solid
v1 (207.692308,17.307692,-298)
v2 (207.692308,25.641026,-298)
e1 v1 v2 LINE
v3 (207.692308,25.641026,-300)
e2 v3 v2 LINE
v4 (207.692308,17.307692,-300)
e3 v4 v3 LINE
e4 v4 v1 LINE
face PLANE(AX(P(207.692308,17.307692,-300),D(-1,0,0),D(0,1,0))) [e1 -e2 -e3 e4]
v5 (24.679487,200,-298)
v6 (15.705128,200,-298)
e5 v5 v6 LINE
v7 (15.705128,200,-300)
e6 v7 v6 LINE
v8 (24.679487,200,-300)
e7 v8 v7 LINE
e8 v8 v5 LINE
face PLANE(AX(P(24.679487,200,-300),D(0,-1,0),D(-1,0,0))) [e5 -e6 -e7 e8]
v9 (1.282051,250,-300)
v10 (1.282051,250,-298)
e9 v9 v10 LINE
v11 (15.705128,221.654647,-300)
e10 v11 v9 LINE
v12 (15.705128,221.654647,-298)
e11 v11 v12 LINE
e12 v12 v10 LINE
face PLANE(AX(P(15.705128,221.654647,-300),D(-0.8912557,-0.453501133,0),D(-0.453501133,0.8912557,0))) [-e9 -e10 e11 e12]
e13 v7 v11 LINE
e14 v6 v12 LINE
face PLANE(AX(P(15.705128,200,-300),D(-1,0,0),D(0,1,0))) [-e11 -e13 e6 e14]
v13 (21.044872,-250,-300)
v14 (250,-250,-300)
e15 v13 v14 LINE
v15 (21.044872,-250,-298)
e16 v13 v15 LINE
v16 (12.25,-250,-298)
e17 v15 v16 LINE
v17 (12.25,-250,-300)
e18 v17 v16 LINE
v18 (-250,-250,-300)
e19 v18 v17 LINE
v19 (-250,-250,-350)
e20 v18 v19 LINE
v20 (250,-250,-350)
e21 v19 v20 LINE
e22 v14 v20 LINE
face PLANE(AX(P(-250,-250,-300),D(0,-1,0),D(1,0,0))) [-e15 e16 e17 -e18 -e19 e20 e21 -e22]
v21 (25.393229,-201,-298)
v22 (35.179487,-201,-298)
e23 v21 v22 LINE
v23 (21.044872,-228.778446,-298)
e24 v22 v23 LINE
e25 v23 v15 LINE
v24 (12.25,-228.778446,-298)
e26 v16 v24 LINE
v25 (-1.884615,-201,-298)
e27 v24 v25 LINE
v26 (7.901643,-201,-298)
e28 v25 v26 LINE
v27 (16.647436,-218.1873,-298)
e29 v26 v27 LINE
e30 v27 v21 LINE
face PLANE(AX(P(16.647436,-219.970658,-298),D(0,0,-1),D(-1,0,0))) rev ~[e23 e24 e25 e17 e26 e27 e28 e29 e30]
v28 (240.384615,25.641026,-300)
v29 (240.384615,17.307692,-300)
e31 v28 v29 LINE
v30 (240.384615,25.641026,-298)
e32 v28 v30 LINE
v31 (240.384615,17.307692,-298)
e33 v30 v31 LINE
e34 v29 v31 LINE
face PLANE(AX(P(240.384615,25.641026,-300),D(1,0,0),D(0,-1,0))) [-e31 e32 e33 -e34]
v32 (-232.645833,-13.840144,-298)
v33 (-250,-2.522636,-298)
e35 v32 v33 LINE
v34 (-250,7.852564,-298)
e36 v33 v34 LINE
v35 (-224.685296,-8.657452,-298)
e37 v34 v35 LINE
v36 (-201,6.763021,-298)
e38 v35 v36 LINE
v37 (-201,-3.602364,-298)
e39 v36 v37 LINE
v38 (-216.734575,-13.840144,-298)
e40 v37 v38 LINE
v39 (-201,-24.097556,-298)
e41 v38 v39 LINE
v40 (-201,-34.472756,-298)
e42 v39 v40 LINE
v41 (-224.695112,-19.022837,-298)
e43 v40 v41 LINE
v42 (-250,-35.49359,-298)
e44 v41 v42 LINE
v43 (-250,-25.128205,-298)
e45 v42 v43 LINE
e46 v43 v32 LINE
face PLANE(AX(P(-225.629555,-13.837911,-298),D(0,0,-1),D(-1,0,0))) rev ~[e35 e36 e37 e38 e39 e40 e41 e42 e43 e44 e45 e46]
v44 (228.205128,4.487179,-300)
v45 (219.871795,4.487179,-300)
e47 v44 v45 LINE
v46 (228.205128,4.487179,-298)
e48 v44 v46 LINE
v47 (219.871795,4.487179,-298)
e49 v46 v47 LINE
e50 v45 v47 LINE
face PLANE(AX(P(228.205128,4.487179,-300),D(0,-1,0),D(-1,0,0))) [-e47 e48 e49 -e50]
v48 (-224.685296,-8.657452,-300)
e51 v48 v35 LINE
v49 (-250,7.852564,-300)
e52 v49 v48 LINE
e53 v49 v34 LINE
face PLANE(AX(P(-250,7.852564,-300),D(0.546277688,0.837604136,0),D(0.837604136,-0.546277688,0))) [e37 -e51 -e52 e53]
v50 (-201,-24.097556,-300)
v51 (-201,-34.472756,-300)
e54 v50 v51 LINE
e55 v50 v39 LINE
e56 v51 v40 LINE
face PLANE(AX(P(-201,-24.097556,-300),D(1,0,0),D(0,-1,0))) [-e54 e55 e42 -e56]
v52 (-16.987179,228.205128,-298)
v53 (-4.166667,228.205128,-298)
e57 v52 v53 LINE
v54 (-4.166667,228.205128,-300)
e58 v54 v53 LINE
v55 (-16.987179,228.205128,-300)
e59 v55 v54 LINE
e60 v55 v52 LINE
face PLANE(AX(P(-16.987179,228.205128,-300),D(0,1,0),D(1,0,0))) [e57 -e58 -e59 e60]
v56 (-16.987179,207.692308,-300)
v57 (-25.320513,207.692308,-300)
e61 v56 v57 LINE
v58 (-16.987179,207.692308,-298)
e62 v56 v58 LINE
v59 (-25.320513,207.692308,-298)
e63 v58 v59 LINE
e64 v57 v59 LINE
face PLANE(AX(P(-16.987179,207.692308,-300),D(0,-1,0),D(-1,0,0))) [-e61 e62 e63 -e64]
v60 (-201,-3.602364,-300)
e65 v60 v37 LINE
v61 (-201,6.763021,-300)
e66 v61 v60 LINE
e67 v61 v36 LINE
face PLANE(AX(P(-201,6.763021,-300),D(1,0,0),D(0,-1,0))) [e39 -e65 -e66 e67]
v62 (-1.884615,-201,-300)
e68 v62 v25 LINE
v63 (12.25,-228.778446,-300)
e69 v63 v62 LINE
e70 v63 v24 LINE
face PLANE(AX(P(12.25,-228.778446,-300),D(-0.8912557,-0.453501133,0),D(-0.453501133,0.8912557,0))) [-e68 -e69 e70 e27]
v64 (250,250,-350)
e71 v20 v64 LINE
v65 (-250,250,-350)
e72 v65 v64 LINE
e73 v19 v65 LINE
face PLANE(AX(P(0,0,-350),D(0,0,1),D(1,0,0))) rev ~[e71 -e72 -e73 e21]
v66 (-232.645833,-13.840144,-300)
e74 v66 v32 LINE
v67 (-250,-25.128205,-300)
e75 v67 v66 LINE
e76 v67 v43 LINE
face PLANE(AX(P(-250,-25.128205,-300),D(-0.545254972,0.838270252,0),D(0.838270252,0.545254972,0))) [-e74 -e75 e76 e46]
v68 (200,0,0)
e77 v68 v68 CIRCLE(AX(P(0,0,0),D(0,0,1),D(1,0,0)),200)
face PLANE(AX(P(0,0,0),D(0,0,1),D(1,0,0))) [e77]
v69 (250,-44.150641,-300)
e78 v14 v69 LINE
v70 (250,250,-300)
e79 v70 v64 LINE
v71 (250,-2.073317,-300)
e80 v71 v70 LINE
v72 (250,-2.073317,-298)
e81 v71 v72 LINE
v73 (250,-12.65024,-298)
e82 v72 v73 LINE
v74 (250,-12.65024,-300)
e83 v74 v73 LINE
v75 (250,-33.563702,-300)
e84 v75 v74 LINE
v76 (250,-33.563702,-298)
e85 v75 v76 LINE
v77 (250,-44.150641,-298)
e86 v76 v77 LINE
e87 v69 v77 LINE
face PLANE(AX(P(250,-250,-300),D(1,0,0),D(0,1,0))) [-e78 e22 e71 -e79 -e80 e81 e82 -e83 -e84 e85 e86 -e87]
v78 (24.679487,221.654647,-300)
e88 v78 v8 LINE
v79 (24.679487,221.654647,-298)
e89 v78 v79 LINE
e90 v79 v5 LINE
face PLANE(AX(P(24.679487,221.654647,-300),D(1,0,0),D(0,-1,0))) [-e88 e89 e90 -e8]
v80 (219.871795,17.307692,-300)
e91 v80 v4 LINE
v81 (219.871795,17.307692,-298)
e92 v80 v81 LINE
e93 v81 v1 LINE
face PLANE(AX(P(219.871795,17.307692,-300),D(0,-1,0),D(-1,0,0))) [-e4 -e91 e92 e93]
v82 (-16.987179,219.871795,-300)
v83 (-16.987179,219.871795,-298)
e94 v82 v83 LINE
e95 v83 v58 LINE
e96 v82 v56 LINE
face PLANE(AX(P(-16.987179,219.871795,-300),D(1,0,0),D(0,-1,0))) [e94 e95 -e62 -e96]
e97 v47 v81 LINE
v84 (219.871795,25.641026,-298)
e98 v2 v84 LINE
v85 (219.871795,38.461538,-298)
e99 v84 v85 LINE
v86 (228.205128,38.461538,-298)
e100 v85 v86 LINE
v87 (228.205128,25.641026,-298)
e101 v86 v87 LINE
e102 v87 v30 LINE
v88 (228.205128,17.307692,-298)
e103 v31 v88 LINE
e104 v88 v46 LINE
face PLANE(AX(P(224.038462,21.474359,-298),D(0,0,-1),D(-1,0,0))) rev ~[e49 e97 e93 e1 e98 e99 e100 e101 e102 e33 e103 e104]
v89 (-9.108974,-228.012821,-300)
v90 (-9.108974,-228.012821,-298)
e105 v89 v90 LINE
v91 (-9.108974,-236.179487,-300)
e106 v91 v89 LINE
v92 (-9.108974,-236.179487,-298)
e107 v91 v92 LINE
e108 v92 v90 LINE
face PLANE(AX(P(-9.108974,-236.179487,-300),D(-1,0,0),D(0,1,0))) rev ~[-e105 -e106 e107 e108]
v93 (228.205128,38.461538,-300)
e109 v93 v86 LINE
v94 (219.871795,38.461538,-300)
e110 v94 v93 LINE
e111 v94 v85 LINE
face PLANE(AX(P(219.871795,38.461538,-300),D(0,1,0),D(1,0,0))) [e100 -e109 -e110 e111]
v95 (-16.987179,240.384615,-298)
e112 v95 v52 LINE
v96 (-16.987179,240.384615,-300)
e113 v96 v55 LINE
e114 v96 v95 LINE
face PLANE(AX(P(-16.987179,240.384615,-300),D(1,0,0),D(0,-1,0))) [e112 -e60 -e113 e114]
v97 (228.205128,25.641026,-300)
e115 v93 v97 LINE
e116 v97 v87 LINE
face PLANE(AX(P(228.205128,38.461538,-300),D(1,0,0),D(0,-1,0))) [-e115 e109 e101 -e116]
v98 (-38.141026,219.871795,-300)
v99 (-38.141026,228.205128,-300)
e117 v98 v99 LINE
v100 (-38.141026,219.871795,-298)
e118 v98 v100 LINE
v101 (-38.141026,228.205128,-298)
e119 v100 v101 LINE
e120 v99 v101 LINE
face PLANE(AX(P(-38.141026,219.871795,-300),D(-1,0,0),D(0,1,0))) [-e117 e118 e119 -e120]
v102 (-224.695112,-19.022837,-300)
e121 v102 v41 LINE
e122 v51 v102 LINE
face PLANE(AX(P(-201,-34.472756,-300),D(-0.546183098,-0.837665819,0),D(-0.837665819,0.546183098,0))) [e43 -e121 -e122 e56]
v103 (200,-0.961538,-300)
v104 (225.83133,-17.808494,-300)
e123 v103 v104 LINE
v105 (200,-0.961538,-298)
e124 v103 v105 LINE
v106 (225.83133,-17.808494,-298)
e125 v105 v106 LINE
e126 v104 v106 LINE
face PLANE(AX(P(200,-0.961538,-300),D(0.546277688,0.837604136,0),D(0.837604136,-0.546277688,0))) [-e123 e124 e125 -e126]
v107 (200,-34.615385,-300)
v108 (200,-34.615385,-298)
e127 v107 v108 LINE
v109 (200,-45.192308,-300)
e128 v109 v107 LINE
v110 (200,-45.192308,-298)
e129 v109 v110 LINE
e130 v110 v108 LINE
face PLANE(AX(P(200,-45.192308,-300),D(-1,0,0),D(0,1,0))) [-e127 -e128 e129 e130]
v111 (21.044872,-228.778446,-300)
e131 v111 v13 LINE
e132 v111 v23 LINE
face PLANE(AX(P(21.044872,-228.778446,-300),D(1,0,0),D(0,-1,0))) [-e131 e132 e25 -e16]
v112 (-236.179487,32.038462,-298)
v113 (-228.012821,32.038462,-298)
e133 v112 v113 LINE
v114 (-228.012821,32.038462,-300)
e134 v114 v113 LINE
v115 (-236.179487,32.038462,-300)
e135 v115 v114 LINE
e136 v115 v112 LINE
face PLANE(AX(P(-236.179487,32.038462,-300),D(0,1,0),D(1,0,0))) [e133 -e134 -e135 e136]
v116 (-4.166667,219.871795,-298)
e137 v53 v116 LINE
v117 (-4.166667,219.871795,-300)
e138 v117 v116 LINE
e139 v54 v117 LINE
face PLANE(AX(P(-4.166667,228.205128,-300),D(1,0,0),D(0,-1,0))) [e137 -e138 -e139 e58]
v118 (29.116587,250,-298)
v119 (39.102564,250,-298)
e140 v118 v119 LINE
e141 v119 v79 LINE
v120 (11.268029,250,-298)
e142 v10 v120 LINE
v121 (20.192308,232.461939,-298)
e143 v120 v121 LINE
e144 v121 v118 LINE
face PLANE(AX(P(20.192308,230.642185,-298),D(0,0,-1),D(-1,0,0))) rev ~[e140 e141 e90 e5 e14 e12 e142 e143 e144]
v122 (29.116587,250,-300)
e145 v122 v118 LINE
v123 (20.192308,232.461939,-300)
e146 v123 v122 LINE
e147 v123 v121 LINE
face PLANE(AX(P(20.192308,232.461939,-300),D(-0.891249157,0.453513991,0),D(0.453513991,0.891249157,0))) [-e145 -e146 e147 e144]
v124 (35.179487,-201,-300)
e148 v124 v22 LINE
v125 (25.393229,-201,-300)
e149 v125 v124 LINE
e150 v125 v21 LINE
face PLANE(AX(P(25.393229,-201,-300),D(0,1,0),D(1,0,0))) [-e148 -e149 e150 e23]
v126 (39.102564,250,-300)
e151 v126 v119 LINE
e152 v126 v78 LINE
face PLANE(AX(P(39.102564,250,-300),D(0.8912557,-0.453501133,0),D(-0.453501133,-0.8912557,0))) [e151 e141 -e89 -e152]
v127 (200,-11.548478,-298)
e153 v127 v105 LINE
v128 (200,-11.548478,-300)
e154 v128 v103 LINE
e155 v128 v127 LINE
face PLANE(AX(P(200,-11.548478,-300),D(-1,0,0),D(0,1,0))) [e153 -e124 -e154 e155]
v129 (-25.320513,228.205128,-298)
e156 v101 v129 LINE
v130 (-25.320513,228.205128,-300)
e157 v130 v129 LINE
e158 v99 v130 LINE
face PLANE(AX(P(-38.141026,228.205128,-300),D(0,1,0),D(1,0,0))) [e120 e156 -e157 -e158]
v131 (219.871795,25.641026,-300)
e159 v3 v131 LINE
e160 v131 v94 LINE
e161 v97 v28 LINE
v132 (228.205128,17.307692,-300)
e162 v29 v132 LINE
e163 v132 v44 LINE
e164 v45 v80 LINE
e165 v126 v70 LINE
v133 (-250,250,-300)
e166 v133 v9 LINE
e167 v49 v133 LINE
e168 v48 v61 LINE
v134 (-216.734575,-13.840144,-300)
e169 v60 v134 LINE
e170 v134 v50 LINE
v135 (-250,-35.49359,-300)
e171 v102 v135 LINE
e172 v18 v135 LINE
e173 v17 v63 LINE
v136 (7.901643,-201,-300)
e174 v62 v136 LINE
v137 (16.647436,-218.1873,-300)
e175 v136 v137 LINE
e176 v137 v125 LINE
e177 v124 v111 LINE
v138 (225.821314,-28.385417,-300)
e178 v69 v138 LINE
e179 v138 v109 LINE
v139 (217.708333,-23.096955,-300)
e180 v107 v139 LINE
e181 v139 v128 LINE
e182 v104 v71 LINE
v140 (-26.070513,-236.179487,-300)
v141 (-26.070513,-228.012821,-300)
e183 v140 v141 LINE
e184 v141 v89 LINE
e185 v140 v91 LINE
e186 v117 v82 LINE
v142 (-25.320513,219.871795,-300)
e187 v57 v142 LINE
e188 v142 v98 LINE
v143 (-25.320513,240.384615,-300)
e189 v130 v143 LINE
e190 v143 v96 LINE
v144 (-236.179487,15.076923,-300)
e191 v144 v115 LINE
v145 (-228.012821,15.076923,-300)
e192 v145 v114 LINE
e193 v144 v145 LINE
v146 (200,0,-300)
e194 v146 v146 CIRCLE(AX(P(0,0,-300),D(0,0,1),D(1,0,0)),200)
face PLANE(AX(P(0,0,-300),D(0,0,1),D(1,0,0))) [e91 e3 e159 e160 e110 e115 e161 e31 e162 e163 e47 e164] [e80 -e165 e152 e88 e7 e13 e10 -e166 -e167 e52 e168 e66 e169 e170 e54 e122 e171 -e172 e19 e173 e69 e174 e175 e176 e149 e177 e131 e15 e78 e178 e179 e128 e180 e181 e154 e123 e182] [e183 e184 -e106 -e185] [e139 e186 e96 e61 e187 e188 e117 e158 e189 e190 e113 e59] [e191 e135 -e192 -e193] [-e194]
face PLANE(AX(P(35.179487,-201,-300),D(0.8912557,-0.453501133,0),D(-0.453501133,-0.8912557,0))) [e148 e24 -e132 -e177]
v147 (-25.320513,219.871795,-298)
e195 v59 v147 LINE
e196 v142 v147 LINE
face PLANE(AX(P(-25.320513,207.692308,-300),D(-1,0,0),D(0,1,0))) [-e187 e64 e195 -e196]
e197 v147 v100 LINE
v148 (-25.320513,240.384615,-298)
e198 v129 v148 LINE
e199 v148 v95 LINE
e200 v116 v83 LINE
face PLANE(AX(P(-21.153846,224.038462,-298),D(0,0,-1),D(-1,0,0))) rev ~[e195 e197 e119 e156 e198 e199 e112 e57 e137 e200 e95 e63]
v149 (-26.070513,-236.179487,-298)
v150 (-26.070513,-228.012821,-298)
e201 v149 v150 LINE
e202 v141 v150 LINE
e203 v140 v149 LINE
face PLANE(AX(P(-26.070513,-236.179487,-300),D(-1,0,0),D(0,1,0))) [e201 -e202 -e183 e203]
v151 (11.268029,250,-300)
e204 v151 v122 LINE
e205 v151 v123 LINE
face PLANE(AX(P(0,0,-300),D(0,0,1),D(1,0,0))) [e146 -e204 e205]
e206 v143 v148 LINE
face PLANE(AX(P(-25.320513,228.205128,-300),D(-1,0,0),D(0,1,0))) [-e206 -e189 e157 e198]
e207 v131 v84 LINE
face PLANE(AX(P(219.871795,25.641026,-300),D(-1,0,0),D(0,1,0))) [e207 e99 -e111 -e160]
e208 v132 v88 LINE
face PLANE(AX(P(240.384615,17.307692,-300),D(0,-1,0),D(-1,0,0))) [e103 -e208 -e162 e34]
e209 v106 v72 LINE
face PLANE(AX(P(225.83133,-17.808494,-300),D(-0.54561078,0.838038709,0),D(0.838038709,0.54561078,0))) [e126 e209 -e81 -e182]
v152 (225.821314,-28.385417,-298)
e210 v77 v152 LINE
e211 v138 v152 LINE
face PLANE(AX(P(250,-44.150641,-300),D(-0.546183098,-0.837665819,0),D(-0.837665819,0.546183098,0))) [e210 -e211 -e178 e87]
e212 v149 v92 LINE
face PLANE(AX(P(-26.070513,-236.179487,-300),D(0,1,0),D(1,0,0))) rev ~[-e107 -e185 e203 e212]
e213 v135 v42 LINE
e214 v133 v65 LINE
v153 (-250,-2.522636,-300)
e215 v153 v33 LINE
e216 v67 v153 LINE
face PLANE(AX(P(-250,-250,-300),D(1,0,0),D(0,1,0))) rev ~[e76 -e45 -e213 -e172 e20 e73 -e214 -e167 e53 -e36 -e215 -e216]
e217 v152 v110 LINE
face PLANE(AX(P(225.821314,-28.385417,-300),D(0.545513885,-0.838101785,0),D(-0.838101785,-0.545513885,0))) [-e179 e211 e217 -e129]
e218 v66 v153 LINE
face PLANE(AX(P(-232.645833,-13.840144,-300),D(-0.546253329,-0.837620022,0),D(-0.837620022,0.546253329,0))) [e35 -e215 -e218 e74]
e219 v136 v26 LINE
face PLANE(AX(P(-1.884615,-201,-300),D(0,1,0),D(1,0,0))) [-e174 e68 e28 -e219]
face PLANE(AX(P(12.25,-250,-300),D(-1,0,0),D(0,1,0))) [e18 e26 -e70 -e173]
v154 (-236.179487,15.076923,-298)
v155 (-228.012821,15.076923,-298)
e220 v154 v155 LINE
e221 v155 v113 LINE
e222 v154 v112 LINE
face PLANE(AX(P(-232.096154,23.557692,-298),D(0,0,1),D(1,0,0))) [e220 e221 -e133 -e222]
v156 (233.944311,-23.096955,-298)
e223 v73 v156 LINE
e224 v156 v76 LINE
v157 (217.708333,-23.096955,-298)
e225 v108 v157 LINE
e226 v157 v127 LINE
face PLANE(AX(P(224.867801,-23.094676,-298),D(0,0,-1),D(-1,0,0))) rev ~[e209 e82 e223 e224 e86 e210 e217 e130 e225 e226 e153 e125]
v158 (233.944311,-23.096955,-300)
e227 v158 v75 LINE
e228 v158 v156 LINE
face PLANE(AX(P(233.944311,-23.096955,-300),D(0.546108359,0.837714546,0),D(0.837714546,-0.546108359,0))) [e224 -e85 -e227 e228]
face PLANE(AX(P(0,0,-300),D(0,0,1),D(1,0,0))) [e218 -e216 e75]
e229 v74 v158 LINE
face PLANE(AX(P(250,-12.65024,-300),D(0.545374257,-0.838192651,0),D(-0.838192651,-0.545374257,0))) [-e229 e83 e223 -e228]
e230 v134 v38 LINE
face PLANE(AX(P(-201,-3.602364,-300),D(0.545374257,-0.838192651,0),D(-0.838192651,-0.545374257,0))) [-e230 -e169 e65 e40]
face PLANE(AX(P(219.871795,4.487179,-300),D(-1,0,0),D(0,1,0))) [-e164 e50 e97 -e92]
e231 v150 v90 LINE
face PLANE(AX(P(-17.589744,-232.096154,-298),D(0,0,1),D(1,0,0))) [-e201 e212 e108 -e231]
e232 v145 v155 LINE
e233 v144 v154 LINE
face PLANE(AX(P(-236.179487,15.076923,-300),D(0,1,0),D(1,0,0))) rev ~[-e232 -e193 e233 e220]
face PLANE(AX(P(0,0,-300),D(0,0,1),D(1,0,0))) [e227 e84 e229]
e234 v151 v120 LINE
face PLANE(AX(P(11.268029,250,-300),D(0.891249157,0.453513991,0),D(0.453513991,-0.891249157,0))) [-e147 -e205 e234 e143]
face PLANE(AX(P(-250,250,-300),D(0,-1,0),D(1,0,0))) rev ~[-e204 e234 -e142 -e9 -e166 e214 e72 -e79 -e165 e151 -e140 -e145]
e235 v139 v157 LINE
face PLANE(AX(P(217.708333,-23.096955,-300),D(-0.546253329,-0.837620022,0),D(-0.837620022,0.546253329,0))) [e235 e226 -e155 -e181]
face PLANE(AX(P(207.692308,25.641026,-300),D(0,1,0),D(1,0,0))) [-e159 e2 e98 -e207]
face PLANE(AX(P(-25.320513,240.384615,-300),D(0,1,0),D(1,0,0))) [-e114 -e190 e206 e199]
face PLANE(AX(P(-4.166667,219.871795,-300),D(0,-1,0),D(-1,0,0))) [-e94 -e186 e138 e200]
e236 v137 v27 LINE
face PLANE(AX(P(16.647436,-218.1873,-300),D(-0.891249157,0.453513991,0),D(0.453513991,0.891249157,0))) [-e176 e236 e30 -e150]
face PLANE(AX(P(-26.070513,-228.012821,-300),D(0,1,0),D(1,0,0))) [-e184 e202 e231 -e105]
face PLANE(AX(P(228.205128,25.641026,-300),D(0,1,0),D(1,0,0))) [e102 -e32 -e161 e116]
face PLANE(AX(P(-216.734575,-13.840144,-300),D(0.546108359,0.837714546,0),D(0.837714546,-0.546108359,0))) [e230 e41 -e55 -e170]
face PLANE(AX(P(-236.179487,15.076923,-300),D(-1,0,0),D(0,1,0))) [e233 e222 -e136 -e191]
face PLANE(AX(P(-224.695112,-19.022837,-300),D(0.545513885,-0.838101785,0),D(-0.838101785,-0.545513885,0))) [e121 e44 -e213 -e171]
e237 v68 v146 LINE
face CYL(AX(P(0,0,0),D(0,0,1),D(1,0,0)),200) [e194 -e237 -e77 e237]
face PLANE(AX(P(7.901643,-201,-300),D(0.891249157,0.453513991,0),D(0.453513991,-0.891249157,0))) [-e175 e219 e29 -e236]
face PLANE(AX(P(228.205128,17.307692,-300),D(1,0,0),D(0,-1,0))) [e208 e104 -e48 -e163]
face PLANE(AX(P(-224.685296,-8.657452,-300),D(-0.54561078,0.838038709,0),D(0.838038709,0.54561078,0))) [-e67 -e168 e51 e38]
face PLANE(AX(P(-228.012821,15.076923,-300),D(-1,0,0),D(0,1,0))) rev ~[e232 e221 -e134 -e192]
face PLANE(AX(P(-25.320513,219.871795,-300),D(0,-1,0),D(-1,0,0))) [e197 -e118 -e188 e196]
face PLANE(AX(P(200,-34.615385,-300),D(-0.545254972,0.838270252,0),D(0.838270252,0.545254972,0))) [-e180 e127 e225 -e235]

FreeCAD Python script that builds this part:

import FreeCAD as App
import Part
import Sketcher

V = App.Vector
Q = App.Units.Quantity

doc = App.newDocument("Part")
params = doc.addObject("Spreadsheet::Sheet", "Params")
for row, (alias, value) in enumerate([
    ("sketch1_diameter", "400 mm"),
    ("pad1_length", "300 mm"),
    ("sketch2_width", "500 mm"),
    ("pad2_length", "50 mm"),
    ("pad3_length", "2 mm"),
], start=1):
    params.set(f"A{row}", alias)
    params.set(f"B{row}", "=" + value)
    params.setAlias(f"B{row}", alias)

body = doc.addObject("PartDesign::Body", "Body")

# Sketch on XY plane
sketch1 = body.newObject("Sketcher::SketchObject", "Sketch")
sketch1.AttachmentSupport = (doc.getObject("XY_Plane"), [""])
sketch1.MapMode = "FlatFace"
sketch1.addGeometry(Part.Circle(V(0, 0, 0), V(0, 0, 1), 200), False)
sketch1.addConstraint(Sketcher.Constraint("Coincident", 0, 3, -1, 1))
sketch1.addConstraint(Sketcher.Constraint("Diameter", 0, Q("400 mm")))
sketch1.setExpression("Constraints[1]", "Params.sketch1_diameter")
pad1 = body.newObject("PartDesign::Pad", "Pad")
pad1.Profile = sketch1
pad1.setExpression("Length", "Params.pad1_length")
pad1.Reversed = True

# Sketch on XY plane
sketch2 = body.newObject("Sketcher::SketchObject", "Sketch001")
sketch2.AttachmentSupport = (doc.getObject("XY_Plane"), [""])
sketch2.MapMode = "FlatFace"
sketch2.AttachmentOffset = App.Placement(V(0, 0, -300), App.Rotation())
sketch2.addGeometry(Part.LineSegment(V(-250, 250, 0), V(-250, -250, 0)), False)
sketch2.addGeometry(Part.LineSegment(V(-250, -250, 0), V(250, -250, 0)), False)
sketch2.addGeometry(Part.LineSegment(V(250, -250, 0), V(250, 250, 0)), False)
sketch2.addGeometry(Part.LineSegment(V(250, 250, 0), V(-250, 250, 0)), False)
sketch2.addConstraint(Sketcher.Constraint("Coincident", 0, 2, 1, 1))
sketch2.addConstraint(Sketcher.Constraint("Coincident", 1, 2, 2, 1))
sketch2.addConstraint(Sketcher.Constraint("Coincident", 2, 2, 3, 1))
sketch2.addConstraint(Sketcher.Constraint("Coincident", 3, 2, 0, 1))
sketch2.addConstraint(Sketcher.Constraint("Vertical", 0))
sketch2.addConstraint(Sketcher.Constraint("Horizontal", 1))
sketch2.addConstraint(Sketcher.Constraint("Vertical", 2))
sketch2.addConstraint(Sketcher.Constraint("Horizontal", 3))
sketch2.addConstraint(Sketcher.Constraint("Symmetric", 0, 2, 2, 2, -1, 1))
sketch2.addConstraint(Sketcher.Constraint("Equal", 3, 0))
sketch2.addConstraint(Sketcher.Constraint("DistanceX", 1, 1, 1, 2, Q("500 mm")))
sketch2.setExpression("Constraints[10]", "Params.sketch2_width")
pad2 = body.newObject("PartDesign::Pad", "Pad001")
pad2.Profile = sketch2
pad2.setExpression("Length", "Params.pad2_length")
pad2.Reversed = True

# Sketch on XY plane
sketch3 = body.newObject("Sketcher::SketchObject", "Sketch002")
sketch3.AttachmentSupport = (doc.getObject("XY_Plane"), [""])
sketch3.MapMode = "FlatFace"
sketch3.AttachmentOffset = App.Placement(V(0, 0, -300), App.Rotation())
sketch3.addGeometry(Part.LineSegment(V(240.384615, 25.641026, 0), V(228.205128, 25.641026, 0)), False)
sketch3.addGeometry(Part.LineSegment(V(228.205128, 25.641026, 0), V(228.205128, 38.461538, 0)), False)
sketch3.addGeometry(Part.LineSegment(V(228.205128, 38.461538, 0), V(219.871795, 38.461538, 0)), False)
sketch3.addGeometry(Part.LineSegment(V(219.871795, 38.461538, 0), V(219.871795, 25.641026, 0)), False)
sketch3.addGeometry(Part.LineSegment(V(219.871795, 25.641026, 0), V(207.692308, 25.641026, 0)), False)
sketch3.addGeometry(Part.LineSegment(V(207.692308, 25.641026, 0), V(207.692308, 17.307692, 0)), False)
sketch3.addGeometry(Part.LineSegment(V(207.692308, 17.307692, 0), V(219.871795, 17.307692, 0)), False)
sketch3.addGeometry(Part.LineSegment(V(219.871795, 17.307692, 0), V(219.871795, 4.487179, 0)), False)
sketch3.addGeometry(Part.LineSegment(V(219.871795, 4.487179, 0), V(228.205128, 4.487179, 0)), False)
sketch3.addGeometry(Part.LineSegment(V(228.205128, 4.487179, 0), V(228.205128, 17.307692, 0)), False)
sketch3.addGeometry(Part.LineSegment(V(228.205128, 17.307692, 0), V(240.384615, 17.307692, 0)), False)
sketch3.addGeometry(Part.LineSegment(V(240.384615, 17.307692, 0), V(240.384615, 25.641026, 0)), False)
sketch3.addGeometry(Part.LineSegment(V(250, -12.65024, 0), V(250, -2.073317, 0)), False)
sketch3.addGeometry(Part.LineSegment(V(250, -2.073317, 0), V(225.83133, -17.808494, 0)), False)
sketch3.addGeometry(Part.LineSegment(V(225.83133, -17.808494, 0), V(200, -0.961538, 0)), False)
sketch3.addGeometry(Part.LineSegment(V(200, -0.961538, 0), V(200, -11.548478, 0)), False)
sketch3.addGeometry(Part.LineSegment(V(200, -11.548478, 0), V(217.708333, -23.096955, 0)), False)
sketch3.addGeometry(Part.LineSegment(V(217.708333, -23.096955, 0), V(200, -34.615385, 0)), False)
sketch3.addGeometry(Part.LineSegment(V(200, -34.615385, 0), V(200, -45.192308, 0)), False)
sketch3.addGeometry(Part.LineSegment(V(200, -45.192308, 0), V(225.821314, -28.385417, 0)), False)
sketch3.addGeometry(Part.LineSegment(V(225.821314, -28.385417, 0), V(250, -44.150641, 0)), False)
sketch3.addGeometry(Part.LineSegment(V(250, -44.150641, 0), V(250, -33.563702, 0)), False)
sketch3.addGeometry(Part.LineSegment(V(250, -33.563702, 0), V(233.944311, -23.096955, 0)), False)
sketch3.addGeometry(Part.LineSegment(V(233.944311, -23.096955, 0), V(250, -12.65024, 0)), False)
sketch3.addGeometry(Part.LineSegment(V(-25.320513, 240.384615, 0), V(-25.320513, 228.205128, 0)), False)
sketch3.addGeometry(Part.LineSegment(V(-25.320513, 228.205128, 0), V(-38.141026, 228.205128, 0)), False)
sketch3.addGeometry(Part.LineSegment(V(-38.141026, 228.205128, 0), V(-38.141026, 219.871795, 0)), False)
sketch3.addGeometry(Part.LineSegment(V(-38.141026, 219.871795, 0), V(-25.320513, 219.871795, 0)), False)
sketch3.addGeometry(Part.LineSegment(V(-25.320513, 219.871795, 0), V(-25.320513, 207.692308, 0)), False)
sketch3.addGeometry(Part.LineSegment(V(-25.320513, 207.692308, 0), V(-16.987179, 207.692308, 0)), False)
sketch3.addGeometry(Part.LineSegment(V(-16.987179, 207.692308, 0), V(-16.987179, 219.871795, 0)), False)
sketch3.addGeometry(Part.LineSegment(V(-16.987179, 219.871795, 0), V(-4.166667, 219.871795, 0)), False)
sketch3.addGeometry(Part.LineSegment(V(-4.166667, 219.871795, 0), V(-4.166667, 228.205128, 0)), False)
sketch3.addGeometry(Part.LineSegment(V(-4.166667, 228.205128, 0), V(-16.987179, 228.205128, 0)), False)
sketch3.addGeometry(Part.LineSegment(V(-16.987179, 228.205128, 0), V(-16.987179, 240.384615, 0)), False)
sketch3.addGeometry(Part.LineSegment(V(-16.987179, 240.384615, 0), V(-25.320513, 240.384615, 0)), False)
sketch3.addGeometry(Part.LineSegment(V(11.268029, 250, 0), V(1.282051, 250, 0)), False)
sketch3.addGeometry(Part.LineSegment(V(1.282051, 250, 0), V(15.705128, 221.654647, 0)), False)
sketch3.addGeometry(Part.LineSegment(V(15.705128, 221.654647, 0), V(15.705128, 200, 0)), False)
sketch3.addGeometry(Part.LineSegment(V(15.705128, 200, 0), V(24.679487, 200, 0)), False)
sketch3.addGeometry(Part.LineSegment(V(24.679487, 200, 0), V(24.679487, 221.654647, 0)), False)
sketch3.addGeometry(Part.LineSegment(V(24.679487, 221.654647, 0), V(39.102564, 250, 0)), False)
sketch3.addGeometry(Part.LineSegment(V(39.102564, 250, 0), V(29.116587, 250, 0)), False)
sketch3.addGeometry(Part.LineSegment(V(29.116587, 250, 0), V(20.192308, 232.461939, 0)), False)
sketch3.addGeometry(Part.LineSegment(V(20.192308, 232.461939, 0), V(11.268029, 250, 0)), False)
sketch3.addGeometry(Part.LineSegment(V(-201, -3.602364, 0), V(-201, 6.763021, 0)), False)
sketch3.addGeometry(Part.LineSegment(V(-201, 6.763021, 0), V(-224.685296, -8.657452, 0)), False)
sketch3.addGeometry(Part.LineSegment(V(-224.685296, -8.657452, 0), V(-250, 7.852564, 0)), False)
sketch3.addGeometry(Part.LineSegment(V(-250, 7.852564, 0), V(-250, -2.522636, 0)), False)
sketch3.addGeometry(Part.LineSegment(V(-250, -2.522636, 0), V(-232.645833, -13.840144, 0)), False)
sketch3.addGeometry(Part.LineSegment(V(-232.645833, -13.840144, 0), V(-250, -25.128205, 0)), False)
sketch3.addGeometry(Part.LineSegment(V(-250, -25.128205, 0), V(-250, -35.49359, 0)), False)
sketch3.addGeometry(Part.LineSegment(V(-250, -35.49359, 0), V(-224.695112, -19.022837, 0)), False)
sketch3.addGeometry(Part.LineSegment(V(-224.695112, -19.022837, 0), V(-201, -34.472756, 0)), False)
sketch3.addGeometry(Part.LineSegment(V(-201, -34.472756, 0), V(-201, -24.097556, 0)), False)
sketch3.addGeometry(Part.LineSegment(V(-201, -24.097556, 0), V(-216.734575, -13.840144, 0)), False)
sketch3.addGeometry(Part.LineSegment(V(-216.734575, -13.840144, 0), V(-201, -3.602364, 0)), False)
sketch3.addGeometry(Part.LineSegment(V(-236.179487, 32.038462, 0), V(-236.179487, 15.076923, 0)), False)
sketch3.addGeometry(Part.LineSegment(V(-236.179487, 15.076923, 0), V(-228.012821, 15.076923, 0)), False)
sketch3.addGeometry(Part.LineSegment(V(-228.012821, 15.076923, 0), V(-228.012821, 32.038462, 0)), False)
sketch3.addGeometry(Part.LineSegment(V(-228.012821, 32.038462, 0), V(-236.179487, 32.038462, 0)), False)
sketch3.addGeometry(Part.LineSegment(V(-26.070513, -228.012821, 0), V(-26.070513, -236.179487, 0)), False)
sketch3.addGeometry(Part.LineSegment(V(-26.070513, -236.179487, 0), V(-9.108974, -236.179487, 0)), False)
sketch3.addGeometry(Part.LineSegment(V(-9.108974, -236.179487, 0), V(-9.108974, -228.012821, 0)), False)
sketch3.addGeometry(Part.LineSegment(V(-9.108974, -228.012821, 0), V(-26.070513, -228.012821, 0)), False)
sketch3.addGeometry(Part.LineSegment(V(7.901643, -201, 0), V(-1.884615, -201, 0)), False)
sketch3.addGeometry(Part.LineSegment(V(-1.884615, -201, 0), V(12.25, -228.778446, 0)), False)
sketch3.addGeometry(Part.LineSegment(V(12.25, -228.778446, 0), V(12.25, -250, 0)), False)
sketch3.addGeometry(Part.LineSegment(V(12.25, -250, 0), V(21.044872, -250, 0)), False)
sketch3.addGeometry(Part.LineSegment(V(21.044872, -250, 0), V(21.044872, -228.778446, 0)), False)
sketch3.addGeometry(Part.LineSegment(V(21.044872, -228.778446, 0), V(35.179487, -201, 0)), False)
sketch3.addGeometry(Part.LineSegment(V(35.179487, -201, 0), V(25.393229, -201, 0)), False)
sketch3.addGeometry(Part.LineSegment(V(25.393229, -201, 0), V(16.647436, -218.1873, 0)), False)
sketch3.addGeometry(Part.LineSegment(V(16.647436, -218.1873, 0), V(7.901643, -201, 0)), False)
sketch3.addConstraint(Sketcher.Constraint("Coincident", 0, 2, 1, 1))
sketch3.addConstraint(Sketcher.Constraint("Coincident", 1, 2, 2, 1))
sketch3.addConstraint(Sketcher.Constraint("Coincident", 2, 2, 3, 1))
sketch3.addConstraint(Sketcher.Constraint("Coincident", 3, 2, 4, 1))
sketch3.addConstraint(Sketcher.Constraint("Coincident", 4, 2, 5, 1))
sketch3.addConstraint(Sketcher.Constraint("Coincident", 5, 2, 6, 1))
sketch3.addConstraint(Sketcher.Constraint("Coincident", 6, 2, 7, 1))
sketch3.addConstraint(Sketcher.Constraint("Coincident", 7, 2, 8, 1))
sketch3.addConstraint(Sketcher.Constraint("Coincident", 8, 2, 9, 1))
sketch3.addConstraint(Sketcher.Constraint("Coincident", 9, 2, 10, 1))
sketch3.addConstraint(Sketcher.Constraint("Coincident", 10, 2, 11, 1))
sketch3.addConstraint(Sketcher.Constraint("Coincident", 11, 2, 0, 1))
sketch3.addConstraint(Sketcher.Constraint("Coincident", 12, 2, 13, 1))
sketch3.addConstraint(Sketcher.Constraint("Coincident", 13, 2, 14, 1))
sketch3.addConstraint(Sketcher.Constraint("Coincident", 14, 2, 15, 1))
sketch3.addConstraint(Sketcher.Constraint("Coincident", 15, 2, 16, 1))
sketch3.addConstraint(Sketcher.Constraint("Coincident", 16, 2, 17, 1))
sketch3.addConstraint(Sketcher.Constraint("Coincident", 17, 2, 18, 1))
sketch3.addConstraint(Sketcher.Constraint("Coincident", 18, 2, 19, 1))
sketch3.addConstraint(Sketcher.Constraint("Coincident", 19, 2, 20, 1))
sketch3.addConstraint(Sketcher.Constraint("Coincident", 20, 2, 21, 1))
sketch3.addConstraint(Sketcher.Constraint("Coincident", 21, 2, 22, 1))
sketch3.addConstraint(Sketcher.Constraint("Coincident", 22, 2, 23, 1))
sketch3.addConstraint(Sketcher.Constraint("Coincident", 23, 2, 12, 1))
sketch3.addConstraint(Sketcher.Constraint("Coincident", 24, 2, 25, 1))
sketch3.addConstraint(Sketcher.Constraint("Coincident", 25, 2, 26, 1))
sketch3.addConstraint(Sketcher.Constraint("Coincident", 26, 2, 27, 1))
sketch3.addConstraint(Sketcher.Constraint("Coincident", 27, 2, 28, 1))
sketch3.addConstraint(Sketcher.Constraint("Coincident", 28, 2, 29, 1))
sketch3.addConstraint(Sketcher.Constraint("Coincident", 29, 2, 30, 1))
sketch3.addConstraint(Sketcher.Constraint("Coincident", 30, 2, 31, 1))
sketch3.addConstraint(Sketcher.Constraint("Coincident", 31, 2, 32, 1))
sketch3.addConstraint(Sketcher.Constraint("Coincident", 32, 2, 33, 1))
sketch3.addConstraint(Sketcher.Constraint("Coincident", 33, 2, 34, 1))
sketch3.addConstraint(Sketcher.Constraint("Coincident", 34, 2, 35, 1))
sketch3.addConstraint(Sketcher.Constraint("Coincident", 35, 2, 24, 1))
sketch3.addConstraint(Sketcher.Constraint("Coincident", 36, 2, 37, 1))
sketch3.addConstraint(Sketcher.Constraint("Coincident", 37, 2, 38, 1))
sketch3.addConstraint(Sketcher.Constraint("Coincident", 38, 2, 39, 1))
sketch3.addConstraint(Sketcher.Constraint("Coincident", 39, 2, 40, 1))
sketch3.addConstraint(Sketcher.Constraint("Coincident", 40, 2, 41, 1))
sketch3.addConstraint(Sketcher.Constraint("Coincident", 41, 2, 42, 1))
sketch3.addConstraint(Sketcher.Constraint("Coincident", 42, 2, 43, 1))
sketch3.addConstraint(Sketcher.Constraint("Coincident", 43, 2, 44, 1))
sketch3.addConstraint(Sketcher.Constraint("Coincident", 44, 2, 36, 1))
sketch3.addConstraint(Sketcher.Constraint("Coincident", 45, 2, 46, 1))
sketch3.addConstraint(Sketcher.Constraint("Coincident", 46, 2, 47, 1))
sketch3.addConstraint(Sketcher.Constraint("Coincident", 47, 2, 48, 1))
sketch3.addConstraint(Sketcher.Constraint("Coincident", 48, 2, 49, 1))
sketch3.addConstraint(Sketcher.Constraint("Coincident", 49, 2, 50, 1))
sketch3.addConstraint(Sketcher.Constraint("Coincident", 50, 2, 51, 1))
sketch3.addConstraint(Sketcher.Constraint("Coincident", 51, 2, 52, 1))
sketch3.addConstraint(Sketcher.Constraint("Coincident", 52, 2, 53, 1))
sketch3.addConstraint(Sketcher.Constraint("Coincident", 53, 2, 54, 1))
sketch3.addConstraint(Sketcher.Constraint("Coincident", 54, 2, 55, 1))
sketch3.addConstraint(Sketcher.Constraint("Coincident", 55, 2, 56, 1))
sketch3.addConstraint(Sketcher.Constraint("Coincident", 56, 2, 45, 1))
sketch3.addConstraint(Sketcher.Constraint("Coincident", 57, 2, 58, 1))
sketch3.addConstraint(Sketcher.Constraint("Coincident", 58, 2, 59, 1))
sketch3.addConstraint(Sketcher.Constraint("Coincident", 59, 2, 60, 1))
sketch3.addConstraint(Sketcher.Constraint("Coincident", 60, 2, 57, 1))
sketch3.addConstraint(Sketcher.Constraint("Coincident", 61, 2, 62, 1))
sketch3.addConstraint(Sketcher.Constraint("Coincident", 62, 2, 63, 1))
sketch3.addConstraint(Sketcher.Constraint("Coincident", 63, 2, 64, 1))
sketch3.addConstraint(Sketcher.Constraint("Coincident", 64, 2, 61, 1))
sketch3.addConstraint(Sketcher.Constraint("Coincident", 65, 2, 66, 1))
sketch3.addConstraint(Sketcher.Constraint("Coincident", 66, 2, 67, 1))
sketch3.addConstraint(Sketcher.Constraint("Coincident", 67, 2, 68, 1))
sketch3.addConstraint(Sketcher.Constraint("Coincident", 68, 2, 69, 1))
sketch3.addConstraint(Sketcher.Constraint("Coincident", 69, 2, 70, 1))
sketch3.addConstraint(Sketcher.Constraint("Coincident", 70, 2, 71, 1))
sketch3.addConstraint(Sketcher.Constraint("Coincident", 71, 2, 72, 1))
sketch3.addConstraint(Sketcher.Constraint("Coincident", 72, 2, 73, 1))
sketch3.addConstraint(Sketcher.Constraint("Coincident", 73, 2, 65, 1))
sketch3.addConstraint(Sketcher.Constraint("Horizontal", 0))
sketch3.addConstraint(Sketcher.Constraint("Vertical", 1))
sketch3.addConstraint(Sketcher.Constraint("Horizontal", 2))
sketch3.addConstraint(Sketcher.Constraint("Vertical", 3))
sketch3.addConstraint(Sketcher.Constraint("Horizontal", 4))
sketch3.addConstraint(Sketcher.Constraint("Vertical", 5))
sketch3.addConstraint(Sketcher.Constraint("Horizontal", 6))
sketch3.addConstraint(Sketcher.Constraint("Vertical", 7))
sketch3.addConstraint(Sketcher.Constraint("Horizontal", 8))
sketch3.addConstraint(Sketcher.Constraint("Vertical", 9))
sketch3.addConstraint(Sketcher.Constraint("Horizontal", 10))
sketch3.addConstraint(Sketcher.Constraint("Vertical", 11))
sketch3.addConstraint(Sketcher.Constraint("Vertical", 12))
sketch3.addConstraint(Sketcher.Constraint("Vertical", 15))
sketch3.addConstraint(Sketcher.Constraint("Vertical", 18))
sketch3.addConstraint(Sketcher.Constraint("Vertical", 21))
sketch3.addConstraint(Sketcher.Constraint("Vertical", 24))
sketch3.addConstraint(Sketcher.Constraint("Horizontal", 25))
sketch3.addConstraint(Sketcher.Constraint("Vertical", 26))
sketch3.addConstraint(Sketcher.Constraint("Horizontal", 27))
sketch3.addConstraint(Sketcher.Constraint("Vertical", 28))
sketch3.addConstraint(Sketcher.Constraint("Horizontal", 29))
sketch3.addConstraint(Sketcher.Constraint("Vertical", 30))
sketch3.addConstraint(Sketcher.Constraint("Horizontal", 31))
sketch3.addConstraint(Sketcher.Constraint("Vertical", 32))
sketch3.addConstraint(Sketcher.Constraint("Horizontal", 33))
sketch3.addConstraint(Sketcher.Constraint("Vertical", 34))
sketch3.addConstraint(Sketcher.Constraint("Horizontal", 35))
sketch3.addConstraint(Sketcher.Constraint("Horizontal", 36))
sketch3.addConstraint(Sketcher.Constraint("Vertical", 38))
sketch3.addConstraint(Sketcher.Constraint("Horizontal", 39))
sketch3.addConstraint(Sketcher.Constraint("Vertical", 40))
sketch3.addConstraint(Sketcher.Constraint("Horizontal", 42))
sketch3.addConstraint(Sketcher.Constraint("Vertical", 45))
sketch3.addConstraint(Sketcher.Constraint("Vertical", 48))
sketch3.addConstraint(Sketcher.Constraint("Vertical", 51))
sketch3.addConstraint(Sketcher.Constraint("Vertical", 54))
sketch3.addConstraint(Sketcher.Constraint("Vertical", 57))
sketch3.addConstraint(Sketcher.Constraint("Horizontal", 58))
sketch3.addConstraint(Sketcher.Constraint("Vertical", 59))
sketch3.addConstraint(Sketcher.Constraint("Horizontal", 60))
sketch3.addConstraint(Sketcher.Constraint("Vertical", 61))
sketch3.addConstraint(Sketcher.Constraint("Horizontal", 62))
sketch3.addConstraint(Sketcher.Constraint("Vertical", 63))
sketch3.addConstraint(Sketcher.Constraint("Horizontal", 64))
sketch3.addConstraint(Sketcher.Constraint("Horizontal", 65))
sketch3.addConstraint(Sketcher.Constraint("Vertical", 67))
sketch3.addConstraint(Sketcher.Constraint("Horizontal", 68))
sketch3.addConstraint(Sketcher.Constraint("Vertical", 69))
sketch3.addConstraint(Sketcher.Constraint("Horizontal", 71))
sketch3.addConstraint(Sketcher.Constraint("Parallel", 13, 46))
sketch3.addConstraint(Sketcher.Constraint("Parallel", 14, 47))
sketch3.addConstraint(Sketcher.Constraint("Parallel", 16, 49))
sketch3.addConstraint(Sketcher.Constraint("Parallel", 17, 50))
sketch3.addConstraint(Sketcher.Constraint("Parallel", 19, 52))
sketch3.addConstraint(Sketcher.Constraint("Parallel", 20, 53))
sketch3.addConstraint(Sketcher.Constraint("Parallel", 22, 55))
sketch3.addConstraint(Sketcher.Constraint("Parallel", 23, 56))
sketch3.addConstraint(Sketcher.Constraint("Parallel", 37, 66))
sketch3.addConstraint(Sketcher.Constraint("Parallel", 41, 70))
sketch3.addConstraint(Sketcher.Constraint("Parallel", 43, 72))
sketch3.addConstraint(Sketcher.Constraint("Parallel", 44, 73))
sketch3.addConstraint(Sketcher.Constraint("Horizontal", 0, 2, 3, 2))
sketch3.addConstraint(Sketcher.Constraint("Horizontal", 6, 2, 9, 2))
sketch3.addConstraint(Sketcher.Constraint("Horizontal", 16, 2, 22, 2))
sketch3.addConstraint(Sketcher.Constraint("Horizontal", 27, 2, 30, 2))
sketch3.addConstraint(Sketcher.Constraint("Horizontal", 25, 2, 32, 2))
sketch3.addConstraint(Sketcher.Constraint("Horizontal", 37, 2, 40, 2))
sketch3.addConstraint(Sketcher.Constraint("Horizontal", 36, 2, 41, 2))
sketch3.addConstraint(Sketcher.Constraint("Horizontal", 49, 2, 55, 2))
sketch3.addConstraint(Sketcher.Constraint("Horizontal", 66, 2, 69, 2))
sketch3.addConstraint(Sketcher.Constraint("Horizontal", 65, 2, 70, 2))
sketch3.addConstraint(Sketcher.Constraint("Vertical", 3, 2, 6, 2))
sketch3.addConstraint(Sketcher.Constraint("Vertical", 1, 2, 8, 2))
sketch3.addConstraint(Sketcher.Constraint("Vertical", 15, 2, 17, 2))
sketch3.addConstraint(Sketcher.Constraint("Vertical", 12, 2, 20, 2))
sketch3.addConstraint(Sketcher.Constraint("Vertical", 24, 2, 27, 2))
sketch3.addConstraint(Sketcher.Constraint("Vertical", 30, 2, 33, 2))
sketch3.addConstraint(Sketcher.Constraint("Vertical", 48, 2, 50, 2))
sketch3.addConstraint(Sketcher.Constraint("Vertical", 45, 2, 53, 2))
sketch3.addConstraint(Sketcher.Constraint("Equal", 0, 4))
sketch3.addConstraint(Sketcher.Constraint("Equal", 8, 29))
sketch3.addConstraint(Sketcher.Constraint("Equal", 27, 31))
sketch3.addConstraint(Sketcher.Constraint("Equal", 36, 42))
sketch3.addConstraint(Sketcher.Constraint("Equal", 65, 71))
sketch3.addConstraint(Sketcher.Constraint("Equal", 33, 1))
sketch3.addConstraint(Sketcher.Constraint("Equal", 35, 5))
sketch3.addConstraint(Sketcher.Constraint("Equal", 3, 7))
sketch3.addConstraint(Sketcher.Constraint("Equal", 12, 18))
sketch3.addConstraint(Sketcher.Constraint("Equal", 15, 21))
sketch3.addConstraint(Sketcher.Constraint("Equal", 10, 24))
sketch3.addConstraint(Sketcher.Constraint("Equal", 11, 26))
sketch3.addConstraint(Sketcher.Constraint("Equal", 24, 28))
sketch3.addConstraint(Sketcher.Constraint("Equal", 45, 51))
sketch3.addConstraint(Sketcher.Constraint("Equal", 48, 54))
sketch3.addConstraint(Sketcher.Constraint("Equal", 64, 57))
sketch3.addConstraint(Sketcher.Constraint("Equal", 60, 61))
sketch3.addConstraint(Sketcher.Constraint("Equal", 37, 41))
sketch3.addConstraint(Sketcher.Constraint("Equal", 43, 44))
sketch3.addConstraint(Sketcher.Constraint("DistanceX", -1, 1, 12, 2, Q("250 mm")))
sketch3.addConstraint(Sketcher.Constraint("DistanceX", -1, 1, 14, 2, Q("200 mm")))
sketch3.addConstraint(Sketcher.Constraint("DistanceY", -1, 1, 36, 2, Q("250 mm")))
sketch3.addConstraint(Sketcher.Constraint("DistanceY", -1, 1, 38, 2, Q("200 mm")))
sketch3.addConstraint(Sketcher.Constraint("DistanceX", 45, 2, -1, 1, Q("201 mm")))
sketch3.addConstraint(Sketcher.Constraint("DistanceX", 47, 2, -1, 1, Q("250 mm")))
sketch3.addConstraint(Sketcher.Constraint("DistanceY", 65, 2, -1, 1, Q("201 mm")))
sketch3.addConstraint(Sketcher.Constraint("DistanceY", 67, 2, -1, 1, Q("250 mm")))
sketch3.addConstraint(Sketcher.Constraint("DistanceX", -1, 1, 66, 2, Q("12.25 mm")))
sketch3.addConstraint(Sketcher.Constraint("DistanceY", 48, 2, 48, 1, Q("10.3752 mm")))
sketch3.addConstraint(Sketcher.Constraint("DistanceX", 39, 1, 39, 2, Q("8.974359 mm")))
sketch3.addConstraint(Sketcher.Constraint("DistanceX", 62, 1, 62, 2, Q("16.961538 mm")))
sketch3.addConstraint(Sketcher.Constraint("DistanceX", 65, 2, 65, 1, Q("9.786258 mm")))
sketch3.addConstraint(Sketcher.Constraint("DistanceX", 68, 1, 68, 2, Q("8.794872 mm")))
sketch3.addConstraint(Sketcher.Constraint("DistanceY", 15, 2, 15, 1, Q("10.586939 mm")))
sketch3.addConstraint(Sketcher.Constraint("DistanceY", 21, 2, -1, 1, Q("33.563702 mm")))
sketch3.addConstraint(Sketcher.Constraint("DistanceY", 72, 2, -1, 1, Q("218.1873 mm")))
sketch3.addConstraint(Sketcher.Constraint("Distance", 16, Q("21.141249 mm")))
sketch3.addConstraint(Sketcher.Constraint("Distance", 17, Q("21.12485 mm")))
sketch3.addConstraint(Sketcher.Constraint("Distance", 19, Q("30.809282 mm")))
sketch3.addConstraint(Sketcher.Constraint("Distance", 23, Q("19.15513 mm")))
sketch3.addConstraint(Sketcher.Constraint("Distance", 37, Q("31.803839 mm")))
sketch3.addConstraint(Sketcher.Constraint("Distance", 46, Q("28.262771 mm")))
sketch3.addConstraint(Sketcher.Constraint("Distance", 53, Q("28.287071 mm")))
sketch3.addConstraint(Sketcher.Constraint("Distance", 55, Q("18.782741 mm")))
sketch3.addConstraint(Sketcher.Constraint("Distance", 66, Q("31.167762 mm")))
sketch3.addConstraint(Sketcher.Constraint("DistanceX", 0, 2, 0, 1, Q("12.179487 mm")))
sketch3.addConstraint(Sketcher.Constraint("DistanceX", 2, 2, 2, 1, Q("8.333333 mm")))
sketch3.addConstraint(Sketcher.Constraint("DistanceX", 25, 2, 25, 1, Q("12.820513 mm")))
sketch3.addConstraint(Sketcher.Constraint("DistanceX", 36, 2, 36, 1, Q("9.985978 mm")))
sketch3.addConstraint(Sketcher.Constraint("DistanceX", 58, 1, 58, 2, Q("8.166667 mm")))
sketch3.addConstraint(Sketcher.Constraint("DistanceY", 12, 1, 12, 2, Q("10.576923 mm")))
sketch3.addConstraint(Sketcher.Constraint("DistanceY", 38, 2, 38, 1, Q("21.654647 mm")))
sketch3.addConstraint(Sketcher.Constraint("DistanceY", 45, 1, 45, 2, Q("10.365385 mm")))
sketch3.addConstraint(Sketcher.Constraint("DistanceX", -1, 1, 0, 2, Q("228.205128 mm")))
sketch3.addConstraint(Sketcher.Constraint("DistanceY", -1, 1, 1, 2, Q("38.461538 mm")))
sketch3.addConstraint(Sketcher.Constraint("DistanceX", -1, 1, 13, 2, Q("225.83133 mm")))
sketch3.addConstraint(Sketcher.Constraint("DistanceY", 14, 2, -1, 1, Q("0.961538 mm")))
sketch3.addConstraint(Sketcher.Constraint("DistanceX", -1, 1, 22, 2, Q("233.944311 mm")))
sketch3.addConstraint(Sketcher.Constraint("DistanceY", 23, 2, -1, 1, Q("12.65024 mm")))
sketch3.addConstraint(Sketcher.Constraint("DistanceY", -1, 1, 24, 2, Q("228.205128 mm")))
sketch3.addConstraint(Sketcher.Constraint("DistanceX", 29, 2, -1, 1, Q("16.987179 mm")))
sketch3.addConstraint(Sketcher.Constraint("DistanceX", -1, 1, 36, 2, Q("1.282051 mm")))
sketch3.addConstraint(Sketcher.Constraint("DistanceY", -1, 1, 45, 2, Q("6.763021 mm")))
sketch3.addConstraint(Sketcher.Constraint("DistanceY", 46, 2, -1, 1, Q("8.657452 mm")))
sketch3.addConstraint(Sketcher.Constraint("DistanceX", 58, 2, -1, 1, Q("228.012821 mm")))
sketch3.addConstraint(Sketcher.Constraint("DistanceY", -1, 1, 59, 2, Q("32.038462 mm")))
sketch3.addConstraint(Sketcher.Constraint("DistanceY", 63, 2, -1, 1, Q("228.012821 mm")))
sketch3.addConstraint(Sketcher.Constraint("DistanceX", 61, 2, -1, 1, Q("26.070513 mm")))
pad3 = body.newObject("PartDesign::Pad", "Pad002")
pad3.Profile = sketch3
pad3.setExpression("Length", "Params.pad3_length")

doc.recompute()
